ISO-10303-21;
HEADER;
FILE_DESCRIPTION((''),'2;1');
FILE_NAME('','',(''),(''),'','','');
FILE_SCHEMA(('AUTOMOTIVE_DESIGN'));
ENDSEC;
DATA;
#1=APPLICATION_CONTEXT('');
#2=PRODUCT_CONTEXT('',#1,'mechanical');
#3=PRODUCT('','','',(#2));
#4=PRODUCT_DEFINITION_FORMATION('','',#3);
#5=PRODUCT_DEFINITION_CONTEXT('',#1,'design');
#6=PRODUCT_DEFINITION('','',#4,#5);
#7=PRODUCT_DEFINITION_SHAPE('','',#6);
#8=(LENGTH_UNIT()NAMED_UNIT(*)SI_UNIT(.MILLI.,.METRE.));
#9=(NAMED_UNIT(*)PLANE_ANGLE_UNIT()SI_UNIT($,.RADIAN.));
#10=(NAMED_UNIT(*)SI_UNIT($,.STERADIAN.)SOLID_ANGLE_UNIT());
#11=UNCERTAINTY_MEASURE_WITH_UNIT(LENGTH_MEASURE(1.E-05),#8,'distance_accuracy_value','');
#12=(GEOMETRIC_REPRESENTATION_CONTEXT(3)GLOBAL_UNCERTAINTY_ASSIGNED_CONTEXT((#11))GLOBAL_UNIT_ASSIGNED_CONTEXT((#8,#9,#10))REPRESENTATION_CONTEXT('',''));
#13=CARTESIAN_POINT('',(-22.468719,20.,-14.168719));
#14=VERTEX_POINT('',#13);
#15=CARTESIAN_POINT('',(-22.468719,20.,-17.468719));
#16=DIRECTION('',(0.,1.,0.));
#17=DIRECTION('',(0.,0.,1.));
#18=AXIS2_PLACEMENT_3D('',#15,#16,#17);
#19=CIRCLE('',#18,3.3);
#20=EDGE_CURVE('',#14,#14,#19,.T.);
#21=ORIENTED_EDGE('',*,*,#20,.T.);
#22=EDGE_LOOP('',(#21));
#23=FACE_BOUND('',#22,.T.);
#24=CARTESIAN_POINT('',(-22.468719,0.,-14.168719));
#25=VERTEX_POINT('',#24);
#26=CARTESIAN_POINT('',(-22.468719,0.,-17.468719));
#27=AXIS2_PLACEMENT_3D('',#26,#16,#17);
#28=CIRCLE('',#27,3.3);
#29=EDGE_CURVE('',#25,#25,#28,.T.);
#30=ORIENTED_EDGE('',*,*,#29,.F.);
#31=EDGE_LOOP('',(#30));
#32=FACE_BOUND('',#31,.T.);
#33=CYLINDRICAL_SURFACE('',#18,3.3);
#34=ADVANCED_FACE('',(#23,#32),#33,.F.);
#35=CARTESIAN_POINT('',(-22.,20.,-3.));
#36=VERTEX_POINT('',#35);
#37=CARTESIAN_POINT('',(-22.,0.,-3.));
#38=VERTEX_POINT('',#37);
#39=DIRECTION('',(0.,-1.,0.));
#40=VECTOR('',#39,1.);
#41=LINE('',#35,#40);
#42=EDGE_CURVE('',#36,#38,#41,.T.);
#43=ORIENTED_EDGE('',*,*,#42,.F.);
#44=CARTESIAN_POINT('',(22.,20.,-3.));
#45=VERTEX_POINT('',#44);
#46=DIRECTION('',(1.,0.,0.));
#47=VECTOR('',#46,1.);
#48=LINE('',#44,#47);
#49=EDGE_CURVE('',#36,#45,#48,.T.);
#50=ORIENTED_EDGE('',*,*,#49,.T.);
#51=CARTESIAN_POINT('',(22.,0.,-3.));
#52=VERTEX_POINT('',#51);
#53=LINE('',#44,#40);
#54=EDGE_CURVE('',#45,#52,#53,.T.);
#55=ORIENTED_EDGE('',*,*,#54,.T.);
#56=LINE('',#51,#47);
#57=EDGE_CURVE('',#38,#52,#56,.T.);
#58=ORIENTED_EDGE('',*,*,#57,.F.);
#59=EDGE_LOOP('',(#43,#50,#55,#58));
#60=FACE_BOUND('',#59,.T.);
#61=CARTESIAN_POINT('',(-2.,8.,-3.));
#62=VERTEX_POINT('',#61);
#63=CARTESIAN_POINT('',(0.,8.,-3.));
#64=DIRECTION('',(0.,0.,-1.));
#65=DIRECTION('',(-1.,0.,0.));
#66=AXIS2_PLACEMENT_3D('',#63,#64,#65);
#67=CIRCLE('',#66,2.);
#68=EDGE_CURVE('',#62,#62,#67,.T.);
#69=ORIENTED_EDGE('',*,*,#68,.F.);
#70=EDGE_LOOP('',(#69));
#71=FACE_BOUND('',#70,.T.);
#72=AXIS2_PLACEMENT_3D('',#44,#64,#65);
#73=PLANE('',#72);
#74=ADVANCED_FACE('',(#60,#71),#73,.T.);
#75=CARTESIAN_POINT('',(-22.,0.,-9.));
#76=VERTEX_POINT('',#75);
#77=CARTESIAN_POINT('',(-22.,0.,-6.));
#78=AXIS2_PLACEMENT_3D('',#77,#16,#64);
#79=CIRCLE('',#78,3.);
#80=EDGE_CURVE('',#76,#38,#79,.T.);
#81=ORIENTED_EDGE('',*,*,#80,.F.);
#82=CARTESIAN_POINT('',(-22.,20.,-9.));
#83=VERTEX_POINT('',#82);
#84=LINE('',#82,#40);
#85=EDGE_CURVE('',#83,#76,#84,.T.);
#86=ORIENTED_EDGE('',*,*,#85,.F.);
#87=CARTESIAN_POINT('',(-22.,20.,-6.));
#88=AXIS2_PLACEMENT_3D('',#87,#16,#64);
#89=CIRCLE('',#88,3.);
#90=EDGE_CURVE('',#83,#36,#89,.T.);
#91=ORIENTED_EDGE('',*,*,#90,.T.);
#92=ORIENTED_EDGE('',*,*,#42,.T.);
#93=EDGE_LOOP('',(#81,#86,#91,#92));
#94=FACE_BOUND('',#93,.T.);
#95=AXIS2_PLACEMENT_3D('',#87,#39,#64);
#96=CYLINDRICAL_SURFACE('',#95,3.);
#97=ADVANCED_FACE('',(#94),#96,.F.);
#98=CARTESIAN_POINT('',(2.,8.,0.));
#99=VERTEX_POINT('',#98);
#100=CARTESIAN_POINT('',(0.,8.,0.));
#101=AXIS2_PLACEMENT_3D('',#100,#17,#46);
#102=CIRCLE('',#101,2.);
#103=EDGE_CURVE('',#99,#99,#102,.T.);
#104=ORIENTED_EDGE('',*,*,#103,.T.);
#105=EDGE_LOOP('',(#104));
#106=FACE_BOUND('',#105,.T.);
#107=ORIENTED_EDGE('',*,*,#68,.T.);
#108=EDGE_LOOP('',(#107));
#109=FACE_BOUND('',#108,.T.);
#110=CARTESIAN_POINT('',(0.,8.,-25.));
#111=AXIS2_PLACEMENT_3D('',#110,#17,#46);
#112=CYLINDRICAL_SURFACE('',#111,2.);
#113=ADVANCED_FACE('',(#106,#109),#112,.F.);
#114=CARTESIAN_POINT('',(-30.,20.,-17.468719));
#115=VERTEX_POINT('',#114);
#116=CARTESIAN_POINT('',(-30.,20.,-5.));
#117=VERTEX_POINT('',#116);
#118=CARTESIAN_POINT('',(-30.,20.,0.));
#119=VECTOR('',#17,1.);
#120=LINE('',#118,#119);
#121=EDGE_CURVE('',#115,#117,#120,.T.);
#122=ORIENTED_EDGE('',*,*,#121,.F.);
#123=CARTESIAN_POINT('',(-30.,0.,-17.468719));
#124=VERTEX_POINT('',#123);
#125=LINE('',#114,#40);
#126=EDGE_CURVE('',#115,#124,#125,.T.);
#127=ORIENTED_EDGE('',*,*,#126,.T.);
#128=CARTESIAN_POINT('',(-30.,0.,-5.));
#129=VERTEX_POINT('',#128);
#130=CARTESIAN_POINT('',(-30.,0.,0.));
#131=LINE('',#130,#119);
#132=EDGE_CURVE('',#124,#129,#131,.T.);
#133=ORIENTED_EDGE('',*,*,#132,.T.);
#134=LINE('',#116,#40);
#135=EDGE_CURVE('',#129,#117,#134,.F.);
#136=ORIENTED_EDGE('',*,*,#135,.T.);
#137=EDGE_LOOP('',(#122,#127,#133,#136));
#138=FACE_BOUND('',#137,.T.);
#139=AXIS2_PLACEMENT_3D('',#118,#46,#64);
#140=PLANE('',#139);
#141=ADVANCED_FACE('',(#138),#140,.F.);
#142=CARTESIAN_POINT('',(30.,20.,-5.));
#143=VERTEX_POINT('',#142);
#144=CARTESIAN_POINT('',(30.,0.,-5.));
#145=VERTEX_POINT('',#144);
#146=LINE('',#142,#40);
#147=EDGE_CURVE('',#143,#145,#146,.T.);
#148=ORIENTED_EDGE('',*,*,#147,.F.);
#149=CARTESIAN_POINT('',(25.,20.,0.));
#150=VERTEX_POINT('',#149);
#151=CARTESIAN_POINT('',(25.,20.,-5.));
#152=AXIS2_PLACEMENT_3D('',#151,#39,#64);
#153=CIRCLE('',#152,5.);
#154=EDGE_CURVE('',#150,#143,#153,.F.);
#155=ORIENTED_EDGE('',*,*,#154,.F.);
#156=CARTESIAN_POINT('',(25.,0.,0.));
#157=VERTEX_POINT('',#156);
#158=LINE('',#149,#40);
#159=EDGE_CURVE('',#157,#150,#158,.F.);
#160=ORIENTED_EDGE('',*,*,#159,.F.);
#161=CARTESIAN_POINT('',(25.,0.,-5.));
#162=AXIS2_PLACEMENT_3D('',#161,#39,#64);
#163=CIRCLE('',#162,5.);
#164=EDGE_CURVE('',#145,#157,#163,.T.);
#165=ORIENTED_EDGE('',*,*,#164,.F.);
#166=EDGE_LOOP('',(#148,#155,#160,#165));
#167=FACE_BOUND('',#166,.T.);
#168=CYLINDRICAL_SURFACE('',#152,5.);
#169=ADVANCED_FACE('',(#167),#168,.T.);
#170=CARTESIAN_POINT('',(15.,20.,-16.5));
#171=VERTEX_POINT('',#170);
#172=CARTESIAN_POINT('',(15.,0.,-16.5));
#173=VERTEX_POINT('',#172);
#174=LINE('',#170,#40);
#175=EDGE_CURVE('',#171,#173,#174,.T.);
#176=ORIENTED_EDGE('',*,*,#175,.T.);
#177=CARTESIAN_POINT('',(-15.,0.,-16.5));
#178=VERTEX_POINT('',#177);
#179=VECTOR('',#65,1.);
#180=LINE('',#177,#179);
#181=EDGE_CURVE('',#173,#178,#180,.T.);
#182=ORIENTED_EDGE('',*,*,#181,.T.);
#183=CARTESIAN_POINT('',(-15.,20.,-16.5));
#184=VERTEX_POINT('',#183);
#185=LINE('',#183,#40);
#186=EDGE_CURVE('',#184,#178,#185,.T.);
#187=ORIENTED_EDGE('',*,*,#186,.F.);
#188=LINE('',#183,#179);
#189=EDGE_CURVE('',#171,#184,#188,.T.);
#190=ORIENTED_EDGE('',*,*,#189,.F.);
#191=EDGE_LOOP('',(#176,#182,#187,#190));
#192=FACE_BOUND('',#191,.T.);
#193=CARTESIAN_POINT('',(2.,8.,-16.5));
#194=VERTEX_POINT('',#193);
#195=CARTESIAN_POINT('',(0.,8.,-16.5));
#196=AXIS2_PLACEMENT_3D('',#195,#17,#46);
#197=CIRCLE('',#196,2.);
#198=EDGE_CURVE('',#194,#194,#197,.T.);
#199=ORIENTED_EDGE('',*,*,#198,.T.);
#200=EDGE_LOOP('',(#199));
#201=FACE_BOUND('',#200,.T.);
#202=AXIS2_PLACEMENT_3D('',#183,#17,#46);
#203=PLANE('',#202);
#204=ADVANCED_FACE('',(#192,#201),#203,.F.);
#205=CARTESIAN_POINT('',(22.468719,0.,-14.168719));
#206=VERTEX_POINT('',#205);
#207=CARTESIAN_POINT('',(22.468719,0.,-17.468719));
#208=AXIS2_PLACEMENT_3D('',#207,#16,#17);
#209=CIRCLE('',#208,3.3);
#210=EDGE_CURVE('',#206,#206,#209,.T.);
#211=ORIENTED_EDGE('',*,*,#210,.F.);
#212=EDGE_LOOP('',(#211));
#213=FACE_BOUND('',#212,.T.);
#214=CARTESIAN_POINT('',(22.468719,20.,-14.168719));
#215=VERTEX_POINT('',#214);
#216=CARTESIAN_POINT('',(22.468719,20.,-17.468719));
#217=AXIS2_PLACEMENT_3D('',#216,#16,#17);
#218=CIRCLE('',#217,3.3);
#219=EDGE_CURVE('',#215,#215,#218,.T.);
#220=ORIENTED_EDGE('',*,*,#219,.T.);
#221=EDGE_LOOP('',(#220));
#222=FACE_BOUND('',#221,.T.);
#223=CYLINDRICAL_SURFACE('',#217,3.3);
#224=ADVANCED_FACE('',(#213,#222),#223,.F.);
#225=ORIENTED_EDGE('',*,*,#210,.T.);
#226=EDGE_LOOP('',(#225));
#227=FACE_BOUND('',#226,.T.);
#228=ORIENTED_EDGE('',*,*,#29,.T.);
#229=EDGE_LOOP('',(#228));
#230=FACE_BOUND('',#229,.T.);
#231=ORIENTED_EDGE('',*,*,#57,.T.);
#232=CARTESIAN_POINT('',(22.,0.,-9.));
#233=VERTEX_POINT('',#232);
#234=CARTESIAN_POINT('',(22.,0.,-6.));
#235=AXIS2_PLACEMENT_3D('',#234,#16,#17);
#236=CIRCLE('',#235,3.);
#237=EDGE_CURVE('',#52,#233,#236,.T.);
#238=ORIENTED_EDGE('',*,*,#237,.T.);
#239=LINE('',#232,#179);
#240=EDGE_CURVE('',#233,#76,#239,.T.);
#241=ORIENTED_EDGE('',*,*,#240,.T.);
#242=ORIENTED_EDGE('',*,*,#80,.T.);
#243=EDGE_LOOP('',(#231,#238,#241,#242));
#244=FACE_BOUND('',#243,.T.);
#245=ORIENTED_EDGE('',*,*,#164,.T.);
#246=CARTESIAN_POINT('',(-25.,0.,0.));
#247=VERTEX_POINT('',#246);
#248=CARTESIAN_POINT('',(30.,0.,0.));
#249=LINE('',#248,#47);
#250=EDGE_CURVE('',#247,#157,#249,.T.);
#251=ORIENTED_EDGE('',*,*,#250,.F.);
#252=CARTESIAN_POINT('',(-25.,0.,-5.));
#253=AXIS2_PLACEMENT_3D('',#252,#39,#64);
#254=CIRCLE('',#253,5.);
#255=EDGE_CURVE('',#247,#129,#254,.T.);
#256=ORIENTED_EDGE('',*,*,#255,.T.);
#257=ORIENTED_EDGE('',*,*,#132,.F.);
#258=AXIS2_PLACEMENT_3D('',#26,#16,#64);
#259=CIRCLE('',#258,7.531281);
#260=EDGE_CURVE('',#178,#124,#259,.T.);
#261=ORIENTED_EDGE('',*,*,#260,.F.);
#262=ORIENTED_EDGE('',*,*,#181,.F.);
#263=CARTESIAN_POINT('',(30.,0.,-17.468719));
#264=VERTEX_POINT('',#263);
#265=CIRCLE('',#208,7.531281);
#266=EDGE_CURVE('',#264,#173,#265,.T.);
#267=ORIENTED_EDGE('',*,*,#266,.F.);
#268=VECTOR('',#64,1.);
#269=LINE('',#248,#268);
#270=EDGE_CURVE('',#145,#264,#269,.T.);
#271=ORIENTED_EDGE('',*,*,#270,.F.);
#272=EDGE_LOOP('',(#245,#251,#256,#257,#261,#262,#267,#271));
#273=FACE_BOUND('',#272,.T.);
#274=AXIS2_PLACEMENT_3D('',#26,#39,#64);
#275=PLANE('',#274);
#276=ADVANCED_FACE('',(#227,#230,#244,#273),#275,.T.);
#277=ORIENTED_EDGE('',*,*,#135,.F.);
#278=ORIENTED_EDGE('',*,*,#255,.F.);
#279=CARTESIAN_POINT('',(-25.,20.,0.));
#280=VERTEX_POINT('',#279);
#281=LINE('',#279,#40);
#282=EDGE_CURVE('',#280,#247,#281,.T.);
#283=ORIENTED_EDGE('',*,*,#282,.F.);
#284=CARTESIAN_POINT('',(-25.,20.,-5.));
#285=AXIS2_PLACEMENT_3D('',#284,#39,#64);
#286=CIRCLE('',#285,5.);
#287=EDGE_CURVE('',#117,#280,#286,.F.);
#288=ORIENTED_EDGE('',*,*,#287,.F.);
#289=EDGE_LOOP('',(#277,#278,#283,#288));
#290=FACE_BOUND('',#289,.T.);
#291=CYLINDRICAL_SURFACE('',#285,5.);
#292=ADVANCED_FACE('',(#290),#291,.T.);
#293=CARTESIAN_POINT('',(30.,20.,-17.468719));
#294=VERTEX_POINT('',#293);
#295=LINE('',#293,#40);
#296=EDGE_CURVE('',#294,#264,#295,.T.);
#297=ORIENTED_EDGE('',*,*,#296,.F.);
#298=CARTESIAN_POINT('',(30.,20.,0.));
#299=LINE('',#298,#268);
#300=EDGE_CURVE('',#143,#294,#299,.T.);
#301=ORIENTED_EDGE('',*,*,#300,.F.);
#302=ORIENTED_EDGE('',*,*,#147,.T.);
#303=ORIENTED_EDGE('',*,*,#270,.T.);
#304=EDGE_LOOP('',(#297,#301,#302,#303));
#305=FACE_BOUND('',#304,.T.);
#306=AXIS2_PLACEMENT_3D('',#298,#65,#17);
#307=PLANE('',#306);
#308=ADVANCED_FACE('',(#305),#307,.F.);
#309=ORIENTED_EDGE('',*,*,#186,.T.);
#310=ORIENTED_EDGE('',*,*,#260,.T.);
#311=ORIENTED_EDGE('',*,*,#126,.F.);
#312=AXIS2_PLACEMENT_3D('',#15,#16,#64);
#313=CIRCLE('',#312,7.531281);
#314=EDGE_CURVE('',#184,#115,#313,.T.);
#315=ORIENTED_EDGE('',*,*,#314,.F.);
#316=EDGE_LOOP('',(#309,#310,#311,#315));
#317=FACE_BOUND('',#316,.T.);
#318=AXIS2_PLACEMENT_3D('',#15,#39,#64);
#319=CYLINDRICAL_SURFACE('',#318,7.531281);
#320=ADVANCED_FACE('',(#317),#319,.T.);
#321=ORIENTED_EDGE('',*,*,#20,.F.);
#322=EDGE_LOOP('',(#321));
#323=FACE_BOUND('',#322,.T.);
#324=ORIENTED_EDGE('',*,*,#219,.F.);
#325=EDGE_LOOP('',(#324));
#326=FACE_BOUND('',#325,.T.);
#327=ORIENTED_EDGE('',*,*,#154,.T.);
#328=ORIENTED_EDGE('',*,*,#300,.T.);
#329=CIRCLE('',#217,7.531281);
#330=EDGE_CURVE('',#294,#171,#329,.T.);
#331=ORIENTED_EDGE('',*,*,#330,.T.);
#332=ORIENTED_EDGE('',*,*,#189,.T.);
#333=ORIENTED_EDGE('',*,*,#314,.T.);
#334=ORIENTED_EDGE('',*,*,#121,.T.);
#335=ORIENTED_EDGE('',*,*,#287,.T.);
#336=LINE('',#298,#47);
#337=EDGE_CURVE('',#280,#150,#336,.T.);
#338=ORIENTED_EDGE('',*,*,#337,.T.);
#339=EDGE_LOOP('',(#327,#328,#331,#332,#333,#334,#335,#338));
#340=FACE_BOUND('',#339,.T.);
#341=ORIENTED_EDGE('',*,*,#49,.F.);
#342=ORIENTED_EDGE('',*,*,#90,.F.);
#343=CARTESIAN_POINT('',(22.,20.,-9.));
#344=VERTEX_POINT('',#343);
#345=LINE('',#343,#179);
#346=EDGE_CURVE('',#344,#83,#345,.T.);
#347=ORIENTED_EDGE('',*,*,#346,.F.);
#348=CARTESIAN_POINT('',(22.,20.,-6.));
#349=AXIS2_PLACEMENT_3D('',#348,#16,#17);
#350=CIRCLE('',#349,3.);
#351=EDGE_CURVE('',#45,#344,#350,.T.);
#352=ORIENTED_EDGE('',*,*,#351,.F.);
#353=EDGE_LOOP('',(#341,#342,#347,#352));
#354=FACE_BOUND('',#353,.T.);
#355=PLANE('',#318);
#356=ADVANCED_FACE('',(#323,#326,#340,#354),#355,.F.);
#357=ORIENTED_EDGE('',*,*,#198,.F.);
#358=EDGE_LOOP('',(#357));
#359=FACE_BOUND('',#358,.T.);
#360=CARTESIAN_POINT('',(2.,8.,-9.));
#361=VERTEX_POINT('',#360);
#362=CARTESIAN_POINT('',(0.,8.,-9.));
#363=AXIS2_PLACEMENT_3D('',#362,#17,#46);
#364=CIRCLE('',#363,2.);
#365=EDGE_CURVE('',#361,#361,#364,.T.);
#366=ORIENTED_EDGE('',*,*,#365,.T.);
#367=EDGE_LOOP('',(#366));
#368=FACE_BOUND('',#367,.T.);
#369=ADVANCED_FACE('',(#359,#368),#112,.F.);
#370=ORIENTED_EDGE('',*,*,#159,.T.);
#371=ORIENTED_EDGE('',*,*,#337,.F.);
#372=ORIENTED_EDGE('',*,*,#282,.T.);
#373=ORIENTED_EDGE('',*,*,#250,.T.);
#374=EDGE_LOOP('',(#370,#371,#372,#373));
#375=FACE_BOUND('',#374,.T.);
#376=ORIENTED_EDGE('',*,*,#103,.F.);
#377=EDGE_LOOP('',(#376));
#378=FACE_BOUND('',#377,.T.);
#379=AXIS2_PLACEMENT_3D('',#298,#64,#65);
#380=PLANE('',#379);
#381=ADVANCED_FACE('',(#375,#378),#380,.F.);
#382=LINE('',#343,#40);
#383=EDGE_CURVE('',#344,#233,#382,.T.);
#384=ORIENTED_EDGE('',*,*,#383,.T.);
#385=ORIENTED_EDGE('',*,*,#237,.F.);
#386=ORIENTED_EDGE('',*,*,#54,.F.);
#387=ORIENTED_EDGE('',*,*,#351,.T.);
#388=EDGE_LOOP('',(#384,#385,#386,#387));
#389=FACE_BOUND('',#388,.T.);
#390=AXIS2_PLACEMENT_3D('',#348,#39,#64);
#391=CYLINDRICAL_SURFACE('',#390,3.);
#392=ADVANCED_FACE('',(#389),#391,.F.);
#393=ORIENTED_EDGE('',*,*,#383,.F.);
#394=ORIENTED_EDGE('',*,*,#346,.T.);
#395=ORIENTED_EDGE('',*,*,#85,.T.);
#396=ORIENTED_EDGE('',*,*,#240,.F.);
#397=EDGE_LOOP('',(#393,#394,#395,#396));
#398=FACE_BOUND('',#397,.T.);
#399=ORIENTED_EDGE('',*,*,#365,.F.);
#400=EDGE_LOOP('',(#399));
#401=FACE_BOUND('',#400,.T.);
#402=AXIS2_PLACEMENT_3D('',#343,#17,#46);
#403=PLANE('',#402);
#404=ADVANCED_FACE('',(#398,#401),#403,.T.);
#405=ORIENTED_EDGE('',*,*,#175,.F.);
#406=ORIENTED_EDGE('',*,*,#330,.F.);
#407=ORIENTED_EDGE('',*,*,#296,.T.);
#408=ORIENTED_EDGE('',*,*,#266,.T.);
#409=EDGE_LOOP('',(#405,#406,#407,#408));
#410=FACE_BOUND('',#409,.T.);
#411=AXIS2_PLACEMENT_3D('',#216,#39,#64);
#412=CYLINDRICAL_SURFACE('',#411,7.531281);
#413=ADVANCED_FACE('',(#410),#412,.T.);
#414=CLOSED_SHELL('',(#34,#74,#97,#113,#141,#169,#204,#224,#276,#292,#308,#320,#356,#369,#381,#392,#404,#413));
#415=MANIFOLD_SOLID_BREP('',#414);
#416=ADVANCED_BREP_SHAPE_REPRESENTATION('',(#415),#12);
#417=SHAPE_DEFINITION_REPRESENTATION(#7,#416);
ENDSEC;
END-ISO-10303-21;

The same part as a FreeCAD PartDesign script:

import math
import FreeCAD as App
import Part
import Sketcher


def edges_at(feature, points):
    """Names of the edges that pass closest to the given points."""
    edges = feature.Shape.Edges
    near = lambda p: min(range(len(edges)), key=lambda i: edges[i].distToShape(Part.Vertex(*p))[0])
    return sorted({f"Edge{near(p) + 1}" for p in points})

doc = App.newDocument("Part")
body = doc.addObject("PartDesign::Body", "Body")

# Sketch on XZ plane
sketch1 = doc.addObject("Sketcher::SketchObject", "Sketch")
body.addObject(sketch1)
sketch1.AttachmentSupport = (doc.XZ_Plane, [""])
sketch1.MapMode = "FlatFace"
sketch1.addGeometry(Part.LineSegment(App.Vector(-30, 0, 0), App.Vector(30, 0, 0)), False)
sketch1.addGeometry(Part.LineSegment(App.Vector(30, 0, 0), App.Vector(30, -17.5, 0)), False)
sketch1.addGeometry(Part.ArcOfCircle(Part.Circle(App.Vector(22.5, -17.5, 0), App.Vector(0, 0, 1), 7.5), math.radians(173), math.radians(360)), False)
sketch1.addGeometry(Part.LineSegment(App.Vector(15, -16.5, 0), App.Vector(-15, -16.5, 0)), False)
sketch1.addGeometry(Part.ArcOfCircle(Part.Circle(App.Vector(-22.5, -17.5, 0), App.Vector(0, 0, 1), 7.5), math.radians(-180), math.radians(7)), False)
sketch1.addGeometry(Part.LineSegment(App.Vector(-30, -17.5, 0), App.Vector(-30, 0, 0)), False)
sketch1.addGeometry(Part.LineSegment(App.Vector(22, -3, 0), App.Vector(-22, -3, 0)), False)
sketch1.addGeometry(Part.ArcOfCircle(Part.Circle(App.Vector(-22, -6, 0), App.Vector(0, 0, 1), 3), math.radians(90), math.radians(270)), False)
sketch1.addGeometry(Part.LineSegment(App.Vector(-22, -9, 0), App.Vector(22, -9, 0)), False)
sketch1.addGeometry(Part.ArcOfCircle(Part.Circle(App.Vector(22, -6, 0), App.Vector(0, 0, 1), 3), math.radians(-90), math.radians(90)), False)
sketch1.addGeometry(Part.Circle(App.Vector(22.5, -17.5, 0), App.Vector(0, 0, 1), 3), False)
sketch1.addGeometry(Part.Circle(App.Vector(-22.5, -17.5, 0), App.Vector(0, 0, 1), 3), False)
sketch1.addConstraint(Sketcher.Constraint("Coincident", 0, 2, 1, 1))
sketch1.addConstraint(Sketcher.Constraint("Tangent", 1, 2, 2, 2))
sketch1.addConstraint(Sketcher.Constraint("Coincident", 2, 1, 3, 1))
sketch1.addConstraint(Sketcher.Constraint("Coincident", 3, 2, 4, 2))
sketch1.addConstraint(Sketcher.Constraint("Tangent", 4, 1, 5, 1))
sketch1.addConstraint(Sketcher.Constraint("Coincident", 5, 2, 0, 1))
sketch1.addConstraint(Sketcher.Constraint("Tangent", 6, 2, 7, 1))
sketch1.addConstraint(Sketcher.Constraint("Tangent", 7, 2, 8, 1))
sketch1.addConstraint(Sketcher.Constraint("Tangent", 8, 2, 9, 1))
sketch1.addConstraint(Sketcher.Constraint("Tangent", 9, 2, 6, 1))
sketch1.addConstraint(Sketcher.Constraint("Horizontal", 0))
sketch1.addConstraint(Sketcher.Constraint("Vertical", 1))
sketch1.addConstraint(Sketcher.Constraint("Horizontal", 3))
sketch1.addConstraint(Sketcher.Constraint("Vertical", 5))
sketch1.addConstraint(Sketcher.Constraint("Horizontal", 6))
sketch1.addConstraint(Sketcher.Constraint("Horizontal", 8))
sketch1.addConstraint(Sketcher.Constraint("Coincident", 10, 3, 2, 3))
sketch1.addConstraint(Sketcher.Constraint("Coincident", 11, 3, 4, 3))
sketch1.addConstraint(Sketcher.Constraint("Equal", 2, 4))
sketch1.addConstraint(Sketcher.Constraint("Equal", 9, 10))
sketch1.addConstraint(Sketcher.Constraint("Equal", 10, 11))
sketch1.addConstraint(Sketcher.Constraint("Symmetric", 0, 2, 5, 2, -1, 1))
sketch1.addConstraint(Sketcher.Constraint("Horizontal", 2, 3, 4, 3))
sketch1.addConstraint(Sketcher.Constraint("Diameter", 10, 6.0))
sketch1.addConstraint(Sketcher.Constraint("DistanceX", 0, 1, 0, 2, 60.0))
sketch1.addConstraint(Sketcher.Constraint("DistanceX", 3, 2, 3, 1, 30.0))
sketch1.addConstraint(Sketcher.Constraint("DistanceX", 6, 2, 6, 1, 44.0))
sketch1.addConstraint(Sketcher.Constraint("DistanceX", 7, 3, -1, 1, 22.0))
sketch1.addConstraint(Sketcher.Constraint("DistanceY", 7, 3, -1, 1, 6.0))
sketch1.addConstraint(Sketcher.Constraint("DistanceY", 2, 1, -1, 1, 16.5))
sketch1.addConstraint(Sketcher.Constraint("Radius", 2, 7.531281))
pad1 = doc.addObject("PartDesign::Pad", "Pad")
body.addObject(pad1)
pad1.Profile = sketch1
pad1.Length = 20
pad1.Reversed = True

# Sketch on XY plane
sketch2 = doc.addObject("Sketcher::SketchObject", "Sketch001")
body.addObject(sketch2)
sketch2.AttachmentSupport = (doc.XY_Plane, [""])
sketch2.MapMode = "FlatFace"
sketch2.addGeometry(Part.Circle(App.Vector(0, 8, 0), App.Vector(0, 0, 1), 2), False)
sketch2.addConstraint(Sketcher.Constraint("PointOnObject", 0, 3, -2))
sketch2.addConstraint(Sketcher.Constraint("Diameter", 0, 4.0))
sketch2.addConstraint(Sketcher.Constraint("DistanceY", -1, 1, 0, 3, 8.0))
pocket1 = doc.addObject("PartDesign::Pocket", "Pocket")
body.addObject(pocket1)
pocket1.Profile = sketch2
pocket1.Type = "ThroughAll"
doc.recompute()

fillet = doc.addObject("PartDesign::Fillet", "Fillet")
body.addObject(fillet)
fillet.Base = (pocket1, edges_at(pocket1, [(30, 10, 0), (-30, 10, 0)]))
fillet.Radius = 5

# Sketch on XZ plane
sketch3 = doc.addObject("Sketcher::SketchObject", "Sketch002")
body.addObject(sketch3)
sketch3.AttachmentSupport = (doc.XZ_Plane, [""])
sketch3.MapMode = "FlatFace"
sketch3.AttachmentOffset = App.Placement(App.Vector(0, 0, -20), App.Rotation())
sketch3.addGeometry(Part.Circle(App.Vector(-22.5, -17.5, 0), App.Vector(0, 0, 1), 3.3), False)
sketch3.addGeometry(Part.Circle(App.Vector(22.5, -17.5, 0), App.Vector(0, 0, 1), 3.3), False)
sketch3.addConstraint(Sketcher.Constraint("Equal", 0, 1))
sketch3.addConstraint(Sketcher.Constraint("Symmetric", 0, 3, 1, 3, -2))
sketch3.addConstraint(Sketcher.Constraint("Diameter", 0, 6.6))
sketch3.addConstraint(Sketcher.Constraint("DistanceX", 0, 3, -1, 1, 22.468719))
sketch3.addConstraint(Sketcher.Constraint("DistanceY", 0, 3, -1, 1, 17.468719))
doc.recompute()
hole = doc.addObject("PartDesign::Hole", "Hole")
body.addObject(hole)
hole.Profile = sketch3
hole.ThreadType = "None"
hole.Diameter = 6.6
hole.DepthType = "ThroughAll"
hole.Reversed = True

doc.recompute()
